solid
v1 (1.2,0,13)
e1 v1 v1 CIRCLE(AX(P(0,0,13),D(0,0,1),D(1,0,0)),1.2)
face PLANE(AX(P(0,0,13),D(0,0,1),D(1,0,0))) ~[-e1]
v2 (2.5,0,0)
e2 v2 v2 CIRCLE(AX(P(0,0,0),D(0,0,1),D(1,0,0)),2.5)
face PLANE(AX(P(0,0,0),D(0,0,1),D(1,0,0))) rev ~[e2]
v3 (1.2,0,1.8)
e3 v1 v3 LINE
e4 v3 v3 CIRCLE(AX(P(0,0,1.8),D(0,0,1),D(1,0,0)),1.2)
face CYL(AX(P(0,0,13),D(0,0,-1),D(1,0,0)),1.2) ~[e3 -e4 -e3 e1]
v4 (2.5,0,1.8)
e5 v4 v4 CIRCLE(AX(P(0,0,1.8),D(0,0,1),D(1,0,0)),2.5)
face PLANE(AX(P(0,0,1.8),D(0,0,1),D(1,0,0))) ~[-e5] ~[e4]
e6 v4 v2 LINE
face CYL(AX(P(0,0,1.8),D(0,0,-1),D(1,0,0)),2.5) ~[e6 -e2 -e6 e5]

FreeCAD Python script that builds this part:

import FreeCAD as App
import Part
import Sketcher
from FreeCAD import Vector
Q = App.Units.Quantity

doc = App.newDocument("Part")
body = doc.addObject("PartDesign::Body", "Body")

# Sketch on XZ plane
sketch1 = body.newObject("Sketcher::SketchObject", "Sketch")
sketch1.AttachmentSupport = (doc.getObject("XZ_Plane"), [""])
sketch1.MapMode = "FlatFace"
sketch1.addGeometry([
    Part.LineSegment(Vector(1.2, 13, 0), Vector(0, 13, 0)),  # 0
    Part.LineSegment(Vector(0, 13, 0), Vector(0, 0, 0)),  # 1
    Part.LineSegment(Vector(0, 0, 0), Vector(2.5, 0, 0)),  # 2
    Part.LineSegment(Vector(2.5, 0, 0), Vector(2.5, 1.8, 0)),  # 3
    Part.LineSegment(Vector(2.5, 1.8, 0), Vector(1.2, 1.8, 0)),  # 4
    Part.LineSegment(Vector(1.2, 1.8, 0), Vector(1.2, 13, 0)),  # 5
], False)
sketch1.addConstraint([
    Sketcher.Constraint("Coincident", 0, 2, 1, 1),
    Sketcher.Constraint("Coincident", 1, 2, 2, 1),
    Sketcher.Constraint("Coincident", 2, 2, 3, 1),
    Sketcher.Constraint("Coincident", 3, 2, 4, 1),
    Sketcher.Constraint("Coincident", 4, 2, 5, 1),
    Sketcher.Constraint("Coincident", 5, 2, 0, 1),
    Sketcher.Constraint("Horizontal", 0),
    Sketcher.Constraint("Vertical", 1),
    Sketcher.Constraint("Horizontal", 2),
    Sketcher.Constraint("Vertical", 3),
    Sketcher.Constraint("Horizontal", 4),
    Sketcher.Constraint("Vertical", 5),
    Sketcher.Constraint("Coincident", 1, 2, -1, 1),
    Sketcher.Constraint("DistanceY", 1, 2, 1, 1, Q("13 mm")),
    Sketcher.Constraint("DistanceX", 0, 2, 0, 1, Q("1.2 mm")),
    Sketcher.Constraint("DistanceX", 2, 1, 2, 2, Q("2.5 mm")),
    Sketcher.Constraint("DistanceY", 3, 1, 3, 2, Q("1.8 mm")),
])
revolution = body.newObject("PartDesign::Revolution", "Revolution")
revolution.Profile = sketch1
revolution.ReferenceAxis = (sketch1, ["V_Axis"])
revolution.Angle = 360

doc.recompute()
